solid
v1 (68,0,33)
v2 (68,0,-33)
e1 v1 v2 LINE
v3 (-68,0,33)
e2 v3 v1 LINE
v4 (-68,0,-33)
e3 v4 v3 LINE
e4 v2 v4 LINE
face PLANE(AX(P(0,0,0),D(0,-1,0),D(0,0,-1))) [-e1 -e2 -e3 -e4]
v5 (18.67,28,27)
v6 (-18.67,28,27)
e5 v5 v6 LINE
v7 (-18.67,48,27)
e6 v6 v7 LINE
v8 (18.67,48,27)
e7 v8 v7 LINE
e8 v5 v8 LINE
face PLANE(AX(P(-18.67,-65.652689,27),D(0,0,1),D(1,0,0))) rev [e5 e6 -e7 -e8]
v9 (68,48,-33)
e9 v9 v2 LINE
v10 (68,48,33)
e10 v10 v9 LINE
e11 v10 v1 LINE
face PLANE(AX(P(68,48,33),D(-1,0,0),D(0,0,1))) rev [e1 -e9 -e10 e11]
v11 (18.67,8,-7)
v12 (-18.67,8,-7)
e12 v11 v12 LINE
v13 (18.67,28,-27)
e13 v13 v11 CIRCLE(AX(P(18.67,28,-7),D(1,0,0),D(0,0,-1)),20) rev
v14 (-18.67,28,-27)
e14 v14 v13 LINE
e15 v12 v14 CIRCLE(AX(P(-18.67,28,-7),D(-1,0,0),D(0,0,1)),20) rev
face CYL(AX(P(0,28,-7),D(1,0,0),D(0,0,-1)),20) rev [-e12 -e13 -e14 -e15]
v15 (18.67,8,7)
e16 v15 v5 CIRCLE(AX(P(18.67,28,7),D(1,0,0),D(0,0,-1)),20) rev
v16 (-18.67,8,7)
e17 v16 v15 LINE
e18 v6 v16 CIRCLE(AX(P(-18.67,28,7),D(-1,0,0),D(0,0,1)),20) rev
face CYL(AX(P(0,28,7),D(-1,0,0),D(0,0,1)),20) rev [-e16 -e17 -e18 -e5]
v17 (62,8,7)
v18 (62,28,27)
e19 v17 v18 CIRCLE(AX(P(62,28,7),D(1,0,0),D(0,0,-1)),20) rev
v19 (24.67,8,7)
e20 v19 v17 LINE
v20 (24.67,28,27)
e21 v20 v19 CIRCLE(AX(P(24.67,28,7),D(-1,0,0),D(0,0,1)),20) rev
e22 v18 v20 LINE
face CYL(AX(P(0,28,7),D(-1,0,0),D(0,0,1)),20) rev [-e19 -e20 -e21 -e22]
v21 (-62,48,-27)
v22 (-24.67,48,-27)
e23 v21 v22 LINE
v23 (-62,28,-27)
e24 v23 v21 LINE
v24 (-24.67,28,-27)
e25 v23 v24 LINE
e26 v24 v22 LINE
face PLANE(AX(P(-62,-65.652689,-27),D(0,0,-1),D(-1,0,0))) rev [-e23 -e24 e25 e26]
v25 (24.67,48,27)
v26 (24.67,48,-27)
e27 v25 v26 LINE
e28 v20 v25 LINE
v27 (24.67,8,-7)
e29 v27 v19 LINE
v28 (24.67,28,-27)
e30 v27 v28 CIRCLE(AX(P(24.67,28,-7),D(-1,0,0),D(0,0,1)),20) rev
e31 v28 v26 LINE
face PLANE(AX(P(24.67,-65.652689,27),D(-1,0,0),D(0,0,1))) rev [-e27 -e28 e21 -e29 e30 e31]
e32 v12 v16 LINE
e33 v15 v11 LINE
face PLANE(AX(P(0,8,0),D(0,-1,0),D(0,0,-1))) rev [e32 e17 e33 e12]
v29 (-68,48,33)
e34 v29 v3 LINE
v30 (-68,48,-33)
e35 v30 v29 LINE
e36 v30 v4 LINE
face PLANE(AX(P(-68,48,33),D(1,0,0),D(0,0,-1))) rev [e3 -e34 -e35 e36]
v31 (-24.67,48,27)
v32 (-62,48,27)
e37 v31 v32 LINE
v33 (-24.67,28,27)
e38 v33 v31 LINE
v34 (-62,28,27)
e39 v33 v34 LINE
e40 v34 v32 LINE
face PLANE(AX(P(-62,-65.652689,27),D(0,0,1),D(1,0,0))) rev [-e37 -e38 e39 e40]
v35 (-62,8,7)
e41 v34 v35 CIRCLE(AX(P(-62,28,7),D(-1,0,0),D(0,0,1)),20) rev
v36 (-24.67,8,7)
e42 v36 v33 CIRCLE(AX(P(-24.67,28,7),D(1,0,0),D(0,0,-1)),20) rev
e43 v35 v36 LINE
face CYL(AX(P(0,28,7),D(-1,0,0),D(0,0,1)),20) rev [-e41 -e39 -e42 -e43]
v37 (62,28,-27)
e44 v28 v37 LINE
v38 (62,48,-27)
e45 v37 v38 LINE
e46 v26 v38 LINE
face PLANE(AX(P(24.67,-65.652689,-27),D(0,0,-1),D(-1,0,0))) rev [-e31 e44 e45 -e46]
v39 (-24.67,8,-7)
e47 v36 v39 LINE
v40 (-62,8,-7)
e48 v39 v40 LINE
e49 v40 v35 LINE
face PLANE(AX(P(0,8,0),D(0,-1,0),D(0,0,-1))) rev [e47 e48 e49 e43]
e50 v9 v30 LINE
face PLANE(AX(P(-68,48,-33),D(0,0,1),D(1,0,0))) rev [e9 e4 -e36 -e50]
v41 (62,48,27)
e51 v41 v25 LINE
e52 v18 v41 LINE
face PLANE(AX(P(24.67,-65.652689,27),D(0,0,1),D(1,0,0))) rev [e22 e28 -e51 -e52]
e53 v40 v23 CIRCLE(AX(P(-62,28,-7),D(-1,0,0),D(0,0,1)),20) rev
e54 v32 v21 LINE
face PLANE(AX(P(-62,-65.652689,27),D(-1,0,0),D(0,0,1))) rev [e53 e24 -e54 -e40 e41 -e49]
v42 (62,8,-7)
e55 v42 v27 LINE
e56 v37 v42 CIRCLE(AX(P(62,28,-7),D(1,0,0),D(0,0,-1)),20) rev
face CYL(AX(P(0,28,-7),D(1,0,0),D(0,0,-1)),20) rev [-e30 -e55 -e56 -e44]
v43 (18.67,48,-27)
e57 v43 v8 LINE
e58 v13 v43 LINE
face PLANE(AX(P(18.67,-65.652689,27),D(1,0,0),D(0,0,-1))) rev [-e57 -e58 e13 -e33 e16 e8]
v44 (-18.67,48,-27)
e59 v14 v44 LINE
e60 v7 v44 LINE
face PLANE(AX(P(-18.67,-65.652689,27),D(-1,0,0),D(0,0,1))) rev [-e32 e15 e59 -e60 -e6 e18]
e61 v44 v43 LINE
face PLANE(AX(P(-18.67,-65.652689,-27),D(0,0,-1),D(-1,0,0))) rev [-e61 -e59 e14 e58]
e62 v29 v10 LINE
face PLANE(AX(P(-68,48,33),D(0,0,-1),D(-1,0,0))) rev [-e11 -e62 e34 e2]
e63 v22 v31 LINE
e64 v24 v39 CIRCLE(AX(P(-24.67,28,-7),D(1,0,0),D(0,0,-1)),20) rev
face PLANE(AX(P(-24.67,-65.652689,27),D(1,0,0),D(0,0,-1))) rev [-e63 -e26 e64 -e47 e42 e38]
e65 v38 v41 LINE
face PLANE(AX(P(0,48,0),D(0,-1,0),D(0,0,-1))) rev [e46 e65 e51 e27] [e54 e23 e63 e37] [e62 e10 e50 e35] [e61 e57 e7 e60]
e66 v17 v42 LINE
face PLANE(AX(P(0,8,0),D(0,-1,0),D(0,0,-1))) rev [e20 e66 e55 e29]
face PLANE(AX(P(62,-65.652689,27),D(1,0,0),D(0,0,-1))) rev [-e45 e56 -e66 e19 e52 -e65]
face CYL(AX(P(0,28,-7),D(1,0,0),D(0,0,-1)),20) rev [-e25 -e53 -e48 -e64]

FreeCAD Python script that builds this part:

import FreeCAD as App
import Part
import Sketcher
from FreeCAD import Vector
Q = App.Units.Quantity


def edges_at(feature, points):
    """Names of the edges that pass closest to the given points."""
    edges = feature.Shape.Edges
    near = lambda p: min(range(len(edges)), key=lambda i: edges[i].distToShape(Part.Vertex(*p))[0])
    return sorted({f"Edge{near(p) + 1}" for p in points})

doc = App.newDocument("Part")
body = doc.addObject("PartDesign::Body", "Body")

# Sketch on XZ plane
sketch1 = body.newObject("Sketcher::SketchObject", "Sketch")
sketch1.AttachmentSupport = (doc.getObject("XZ_Plane"), [""])
sketch1.MapMode = "FlatFace"
sketch1.addGeometry(Part.LineSegment(Vector(-68, -33, 0), Vector(-68, 33, 0)), False)
sketch1.addGeometry(Part.LineSegment(Vector(-68, 33, 0), Vector(68, 33, 0)), False)
sketch1.addGeometry(Part.LineSegment(Vector(68, 33, 0), Vector(68, -33, 0)), False)
sketch1.addGeometry(Part.LineSegment(Vector(68, -33, 0), Vector(-68, -33, 0)), False)
sketch1.addConstraint(Sketcher.Constraint("Coincident", 0, 2, 1, 1))
sketch1.addConstraint(Sketcher.Constraint("Coincident", 1, 2, 2, 1))
sketch1.addConstraint(Sketcher.Constraint("Coincident", 2, 2, 3, 1))
sketch1.addConstraint(Sketcher.Constraint("Coincident", 3, 2, 0, 1))
sketch1.addConstraint(Sketcher.Constraint("Vertical", 0))
sketch1.addConstraint(Sketcher.Constraint("Horizontal", 1))
sketch1.addConstraint(Sketcher.Constraint("Vertical", 2))
sketch1.addConstraint(Sketcher.Constraint("Horizontal", 3))
sketch1.addConstraint(Sketcher.Constraint("Symmetric", 0, 2, 2, 2, -1, 1))
sketch1.addConstraint(Sketcher.Constraint("DistanceX", 1, 1, 1, 2, Q("136 mm")))
sketch1.addConstraint(Sketcher.Constraint("DistanceY", 0, 1, 0, 2, Q("66 mm")))
pad1 = body.newObject("PartDesign::Pad", "Pad")
pad1.Profile = sketch1
pad1.Length = 48
pad1.Reversed = True

# Sketch on XZ plane
sketch2 = body.newObject("Sketcher::SketchObject", "Sketch001")
sketch2.AttachmentSupport = (doc.getObject("XZ_Plane"), [""])
sketch2.MapMode = "FlatFace"
sketch2.AttachmentOffset = App.Placement(Vector(0, 0, -56), App.Rotation())
sketch2.addGeometry(Part.LineSegment(Vector(-62, -27, 0), Vector(-62, 27, 0)), False)
sketch2.addGeometry(Part.LineSegment(Vector(-62, 27, 0), Vector(-25, 27, 0)), False)
sketch2.addGeometry(Part.LineSegment(Vector(-25, 27, 0), Vector(-25, -27, 0)), False)
sketch2.addGeometry(Part.LineSegment(Vector(-25, -27, 0), Vector(-62, -27, 0)), False)
sketch2.addGeometry(Part.LineSegment(Vector(-19, -27, 0), Vector(-19, 27, 0)), False)
sketch2.addGeometry(Part.LineSegment(Vector(-19, 27, 0), Vector(19, 27, 0)), False)
sketch2.addGeometry(Part.LineSegment(Vector(19, 27, 0), Vector(19, -27, 0)), False)
sketch2.addGeometry(Part.LineSegment(Vector(19, -27, 0), Vector(-19, -27, 0)), False)
sketch2.addGeometry(Part.LineSegment(Vector(25, -27, 0), Vector(25, 27, 0)), False)
sketch2.addGeometry(Part.LineSegment(Vector(25, 27, 0), Vector(62, 27, 0)), False)
sketch2.addGeometry(Part.LineSegment(Vector(62, 27, 0), Vector(62, -27, 0)), False)
sketch2.addGeometry(Part.LineSegment(Vector(62, -27, 0), Vector(25, -27, 0)), False)
sketch2.addConstraint(Sketcher.Constraint("Coincident", 0, 2, 1, 1))
sketch2.addConstraint(Sketcher.Constraint("Coincident", 1, 2, 2, 1))
sketch2.addConstraint(Sketcher.Constraint("Coincident", 2, 2, 3, 1))
sketch2.addConstraint(Sketcher.Constraint("Coincident", 3, 2, 0, 1))
sketch2.addConstraint(Sketcher.Constraint("Coincident", 4, 2, 5, 1))
sketch2.addConstraint(Sketcher.Constraint("Coincident", 5, 2, 6, 1))
sketch2.addConstraint(Sketcher.Constraint("Coincident", 6, 2, 7, 1))
sketch2.addConstraint(Sketcher.Constraint("Coincident", 7, 2, 4, 1))
sketch2.addConstraint(Sketcher.Constraint("Coincident", 8, 2, 9, 1))
sketch2.addConstraint(Sketcher.Constraint("Coincident", 9, 2, 10, 1))
sketch2.addConstraint(Sketcher.Constraint("Coincident", 10, 2, 11, 1))
sketch2.addConstraint(Sketcher.Constraint("Coincident", 11, 2, 8, 1))
sketch2.addConstraint(Sketcher.Constraint("Vertical", 0))
sketch2.addConstraint(Sketcher.Constraint("Horizontal", 1))
sketch2.addConstraint(Sketcher.Constraint("Vertical", 2))
sketch2.addConstraint(Sketcher.Constraint("Horizontal", 3))
sketch2.addConstraint(Sketcher.Constraint("Vertical", 4))
sketch2.addConstraint(Sketcher.Constraint("Horizontal", 5))
sketch2.addConstraint(Sketcher.Constraint("Vertical", 6))
sketch2.addConstraint(Sketcher.Constraint("Horizontal", 7))
sketch2.addConstraint(Sketcher.Constraint("Vertical", 8))
sketch2.addConstraint(Sketcher.Constraint("Horizontal", 9))
sketch2.addConstraint(Sketcher.Constraint("Vertical", 10))
sketch2.addConstraint(Sketcher.Constraint("Horizontal", 11))
sketch2.addConstraint(Sketcher.Constraint("Symmetric", 4, 2, 6, 2, -1, 1))
sketch2.addConstraint(Sketcher.Constraint("Symmetric", 2, 2, 8, 2, -1, 1))
sketch2.addConstraint(Sketcher.Constraint("Symmetric", 0, 2, 10, 2, -1, 1))
sketch2.addConstraint(Sketcher.Constraint("Horizontal", 1, 2, 4, 2))
sketch2.addConstraint(Sketcher.Constraint("Horizontal", 3, 2, 6, 2))
sketch2.addConstraint(Sketcher.Constraint("DistanceY", 0, 1, 0, 2, Q("54 mm")))
sketch2.addConstraint(Sketcher.Constraint("DistanceX", 0, 2, -1, 1, Q("62 mm")))
sketch2.addConstraint(Sketcher.Constraint("DistanceX", 1, 2, 4, 2, Q("6 mm")))
sketch2.addConstraint(Sketcher.Constraint("DistanceX", 1, 1, 1, 2, Q("37.33 mm")))
pocket1 = body.newObject("PartDesign::Pocket", "Pocket")
pocket1.Profile = sketch2
pocket1.Length = 48
pocket1.Reversed = True
doc.recompute()

fillet = body.newObject("PartDesign::Fillet", "Fillet")
fillet.Base = (pocket1, edges_at(pocket1, [
    (-43.335, 8, -27),
    (-43.335, 8, 27),
    (0, 8, -27),
    (0, 8, 27),
    (43.335, 8, -27),
    (43.335, 8, 27),
]))
fillet.Radius = 20

doc.recompute()
